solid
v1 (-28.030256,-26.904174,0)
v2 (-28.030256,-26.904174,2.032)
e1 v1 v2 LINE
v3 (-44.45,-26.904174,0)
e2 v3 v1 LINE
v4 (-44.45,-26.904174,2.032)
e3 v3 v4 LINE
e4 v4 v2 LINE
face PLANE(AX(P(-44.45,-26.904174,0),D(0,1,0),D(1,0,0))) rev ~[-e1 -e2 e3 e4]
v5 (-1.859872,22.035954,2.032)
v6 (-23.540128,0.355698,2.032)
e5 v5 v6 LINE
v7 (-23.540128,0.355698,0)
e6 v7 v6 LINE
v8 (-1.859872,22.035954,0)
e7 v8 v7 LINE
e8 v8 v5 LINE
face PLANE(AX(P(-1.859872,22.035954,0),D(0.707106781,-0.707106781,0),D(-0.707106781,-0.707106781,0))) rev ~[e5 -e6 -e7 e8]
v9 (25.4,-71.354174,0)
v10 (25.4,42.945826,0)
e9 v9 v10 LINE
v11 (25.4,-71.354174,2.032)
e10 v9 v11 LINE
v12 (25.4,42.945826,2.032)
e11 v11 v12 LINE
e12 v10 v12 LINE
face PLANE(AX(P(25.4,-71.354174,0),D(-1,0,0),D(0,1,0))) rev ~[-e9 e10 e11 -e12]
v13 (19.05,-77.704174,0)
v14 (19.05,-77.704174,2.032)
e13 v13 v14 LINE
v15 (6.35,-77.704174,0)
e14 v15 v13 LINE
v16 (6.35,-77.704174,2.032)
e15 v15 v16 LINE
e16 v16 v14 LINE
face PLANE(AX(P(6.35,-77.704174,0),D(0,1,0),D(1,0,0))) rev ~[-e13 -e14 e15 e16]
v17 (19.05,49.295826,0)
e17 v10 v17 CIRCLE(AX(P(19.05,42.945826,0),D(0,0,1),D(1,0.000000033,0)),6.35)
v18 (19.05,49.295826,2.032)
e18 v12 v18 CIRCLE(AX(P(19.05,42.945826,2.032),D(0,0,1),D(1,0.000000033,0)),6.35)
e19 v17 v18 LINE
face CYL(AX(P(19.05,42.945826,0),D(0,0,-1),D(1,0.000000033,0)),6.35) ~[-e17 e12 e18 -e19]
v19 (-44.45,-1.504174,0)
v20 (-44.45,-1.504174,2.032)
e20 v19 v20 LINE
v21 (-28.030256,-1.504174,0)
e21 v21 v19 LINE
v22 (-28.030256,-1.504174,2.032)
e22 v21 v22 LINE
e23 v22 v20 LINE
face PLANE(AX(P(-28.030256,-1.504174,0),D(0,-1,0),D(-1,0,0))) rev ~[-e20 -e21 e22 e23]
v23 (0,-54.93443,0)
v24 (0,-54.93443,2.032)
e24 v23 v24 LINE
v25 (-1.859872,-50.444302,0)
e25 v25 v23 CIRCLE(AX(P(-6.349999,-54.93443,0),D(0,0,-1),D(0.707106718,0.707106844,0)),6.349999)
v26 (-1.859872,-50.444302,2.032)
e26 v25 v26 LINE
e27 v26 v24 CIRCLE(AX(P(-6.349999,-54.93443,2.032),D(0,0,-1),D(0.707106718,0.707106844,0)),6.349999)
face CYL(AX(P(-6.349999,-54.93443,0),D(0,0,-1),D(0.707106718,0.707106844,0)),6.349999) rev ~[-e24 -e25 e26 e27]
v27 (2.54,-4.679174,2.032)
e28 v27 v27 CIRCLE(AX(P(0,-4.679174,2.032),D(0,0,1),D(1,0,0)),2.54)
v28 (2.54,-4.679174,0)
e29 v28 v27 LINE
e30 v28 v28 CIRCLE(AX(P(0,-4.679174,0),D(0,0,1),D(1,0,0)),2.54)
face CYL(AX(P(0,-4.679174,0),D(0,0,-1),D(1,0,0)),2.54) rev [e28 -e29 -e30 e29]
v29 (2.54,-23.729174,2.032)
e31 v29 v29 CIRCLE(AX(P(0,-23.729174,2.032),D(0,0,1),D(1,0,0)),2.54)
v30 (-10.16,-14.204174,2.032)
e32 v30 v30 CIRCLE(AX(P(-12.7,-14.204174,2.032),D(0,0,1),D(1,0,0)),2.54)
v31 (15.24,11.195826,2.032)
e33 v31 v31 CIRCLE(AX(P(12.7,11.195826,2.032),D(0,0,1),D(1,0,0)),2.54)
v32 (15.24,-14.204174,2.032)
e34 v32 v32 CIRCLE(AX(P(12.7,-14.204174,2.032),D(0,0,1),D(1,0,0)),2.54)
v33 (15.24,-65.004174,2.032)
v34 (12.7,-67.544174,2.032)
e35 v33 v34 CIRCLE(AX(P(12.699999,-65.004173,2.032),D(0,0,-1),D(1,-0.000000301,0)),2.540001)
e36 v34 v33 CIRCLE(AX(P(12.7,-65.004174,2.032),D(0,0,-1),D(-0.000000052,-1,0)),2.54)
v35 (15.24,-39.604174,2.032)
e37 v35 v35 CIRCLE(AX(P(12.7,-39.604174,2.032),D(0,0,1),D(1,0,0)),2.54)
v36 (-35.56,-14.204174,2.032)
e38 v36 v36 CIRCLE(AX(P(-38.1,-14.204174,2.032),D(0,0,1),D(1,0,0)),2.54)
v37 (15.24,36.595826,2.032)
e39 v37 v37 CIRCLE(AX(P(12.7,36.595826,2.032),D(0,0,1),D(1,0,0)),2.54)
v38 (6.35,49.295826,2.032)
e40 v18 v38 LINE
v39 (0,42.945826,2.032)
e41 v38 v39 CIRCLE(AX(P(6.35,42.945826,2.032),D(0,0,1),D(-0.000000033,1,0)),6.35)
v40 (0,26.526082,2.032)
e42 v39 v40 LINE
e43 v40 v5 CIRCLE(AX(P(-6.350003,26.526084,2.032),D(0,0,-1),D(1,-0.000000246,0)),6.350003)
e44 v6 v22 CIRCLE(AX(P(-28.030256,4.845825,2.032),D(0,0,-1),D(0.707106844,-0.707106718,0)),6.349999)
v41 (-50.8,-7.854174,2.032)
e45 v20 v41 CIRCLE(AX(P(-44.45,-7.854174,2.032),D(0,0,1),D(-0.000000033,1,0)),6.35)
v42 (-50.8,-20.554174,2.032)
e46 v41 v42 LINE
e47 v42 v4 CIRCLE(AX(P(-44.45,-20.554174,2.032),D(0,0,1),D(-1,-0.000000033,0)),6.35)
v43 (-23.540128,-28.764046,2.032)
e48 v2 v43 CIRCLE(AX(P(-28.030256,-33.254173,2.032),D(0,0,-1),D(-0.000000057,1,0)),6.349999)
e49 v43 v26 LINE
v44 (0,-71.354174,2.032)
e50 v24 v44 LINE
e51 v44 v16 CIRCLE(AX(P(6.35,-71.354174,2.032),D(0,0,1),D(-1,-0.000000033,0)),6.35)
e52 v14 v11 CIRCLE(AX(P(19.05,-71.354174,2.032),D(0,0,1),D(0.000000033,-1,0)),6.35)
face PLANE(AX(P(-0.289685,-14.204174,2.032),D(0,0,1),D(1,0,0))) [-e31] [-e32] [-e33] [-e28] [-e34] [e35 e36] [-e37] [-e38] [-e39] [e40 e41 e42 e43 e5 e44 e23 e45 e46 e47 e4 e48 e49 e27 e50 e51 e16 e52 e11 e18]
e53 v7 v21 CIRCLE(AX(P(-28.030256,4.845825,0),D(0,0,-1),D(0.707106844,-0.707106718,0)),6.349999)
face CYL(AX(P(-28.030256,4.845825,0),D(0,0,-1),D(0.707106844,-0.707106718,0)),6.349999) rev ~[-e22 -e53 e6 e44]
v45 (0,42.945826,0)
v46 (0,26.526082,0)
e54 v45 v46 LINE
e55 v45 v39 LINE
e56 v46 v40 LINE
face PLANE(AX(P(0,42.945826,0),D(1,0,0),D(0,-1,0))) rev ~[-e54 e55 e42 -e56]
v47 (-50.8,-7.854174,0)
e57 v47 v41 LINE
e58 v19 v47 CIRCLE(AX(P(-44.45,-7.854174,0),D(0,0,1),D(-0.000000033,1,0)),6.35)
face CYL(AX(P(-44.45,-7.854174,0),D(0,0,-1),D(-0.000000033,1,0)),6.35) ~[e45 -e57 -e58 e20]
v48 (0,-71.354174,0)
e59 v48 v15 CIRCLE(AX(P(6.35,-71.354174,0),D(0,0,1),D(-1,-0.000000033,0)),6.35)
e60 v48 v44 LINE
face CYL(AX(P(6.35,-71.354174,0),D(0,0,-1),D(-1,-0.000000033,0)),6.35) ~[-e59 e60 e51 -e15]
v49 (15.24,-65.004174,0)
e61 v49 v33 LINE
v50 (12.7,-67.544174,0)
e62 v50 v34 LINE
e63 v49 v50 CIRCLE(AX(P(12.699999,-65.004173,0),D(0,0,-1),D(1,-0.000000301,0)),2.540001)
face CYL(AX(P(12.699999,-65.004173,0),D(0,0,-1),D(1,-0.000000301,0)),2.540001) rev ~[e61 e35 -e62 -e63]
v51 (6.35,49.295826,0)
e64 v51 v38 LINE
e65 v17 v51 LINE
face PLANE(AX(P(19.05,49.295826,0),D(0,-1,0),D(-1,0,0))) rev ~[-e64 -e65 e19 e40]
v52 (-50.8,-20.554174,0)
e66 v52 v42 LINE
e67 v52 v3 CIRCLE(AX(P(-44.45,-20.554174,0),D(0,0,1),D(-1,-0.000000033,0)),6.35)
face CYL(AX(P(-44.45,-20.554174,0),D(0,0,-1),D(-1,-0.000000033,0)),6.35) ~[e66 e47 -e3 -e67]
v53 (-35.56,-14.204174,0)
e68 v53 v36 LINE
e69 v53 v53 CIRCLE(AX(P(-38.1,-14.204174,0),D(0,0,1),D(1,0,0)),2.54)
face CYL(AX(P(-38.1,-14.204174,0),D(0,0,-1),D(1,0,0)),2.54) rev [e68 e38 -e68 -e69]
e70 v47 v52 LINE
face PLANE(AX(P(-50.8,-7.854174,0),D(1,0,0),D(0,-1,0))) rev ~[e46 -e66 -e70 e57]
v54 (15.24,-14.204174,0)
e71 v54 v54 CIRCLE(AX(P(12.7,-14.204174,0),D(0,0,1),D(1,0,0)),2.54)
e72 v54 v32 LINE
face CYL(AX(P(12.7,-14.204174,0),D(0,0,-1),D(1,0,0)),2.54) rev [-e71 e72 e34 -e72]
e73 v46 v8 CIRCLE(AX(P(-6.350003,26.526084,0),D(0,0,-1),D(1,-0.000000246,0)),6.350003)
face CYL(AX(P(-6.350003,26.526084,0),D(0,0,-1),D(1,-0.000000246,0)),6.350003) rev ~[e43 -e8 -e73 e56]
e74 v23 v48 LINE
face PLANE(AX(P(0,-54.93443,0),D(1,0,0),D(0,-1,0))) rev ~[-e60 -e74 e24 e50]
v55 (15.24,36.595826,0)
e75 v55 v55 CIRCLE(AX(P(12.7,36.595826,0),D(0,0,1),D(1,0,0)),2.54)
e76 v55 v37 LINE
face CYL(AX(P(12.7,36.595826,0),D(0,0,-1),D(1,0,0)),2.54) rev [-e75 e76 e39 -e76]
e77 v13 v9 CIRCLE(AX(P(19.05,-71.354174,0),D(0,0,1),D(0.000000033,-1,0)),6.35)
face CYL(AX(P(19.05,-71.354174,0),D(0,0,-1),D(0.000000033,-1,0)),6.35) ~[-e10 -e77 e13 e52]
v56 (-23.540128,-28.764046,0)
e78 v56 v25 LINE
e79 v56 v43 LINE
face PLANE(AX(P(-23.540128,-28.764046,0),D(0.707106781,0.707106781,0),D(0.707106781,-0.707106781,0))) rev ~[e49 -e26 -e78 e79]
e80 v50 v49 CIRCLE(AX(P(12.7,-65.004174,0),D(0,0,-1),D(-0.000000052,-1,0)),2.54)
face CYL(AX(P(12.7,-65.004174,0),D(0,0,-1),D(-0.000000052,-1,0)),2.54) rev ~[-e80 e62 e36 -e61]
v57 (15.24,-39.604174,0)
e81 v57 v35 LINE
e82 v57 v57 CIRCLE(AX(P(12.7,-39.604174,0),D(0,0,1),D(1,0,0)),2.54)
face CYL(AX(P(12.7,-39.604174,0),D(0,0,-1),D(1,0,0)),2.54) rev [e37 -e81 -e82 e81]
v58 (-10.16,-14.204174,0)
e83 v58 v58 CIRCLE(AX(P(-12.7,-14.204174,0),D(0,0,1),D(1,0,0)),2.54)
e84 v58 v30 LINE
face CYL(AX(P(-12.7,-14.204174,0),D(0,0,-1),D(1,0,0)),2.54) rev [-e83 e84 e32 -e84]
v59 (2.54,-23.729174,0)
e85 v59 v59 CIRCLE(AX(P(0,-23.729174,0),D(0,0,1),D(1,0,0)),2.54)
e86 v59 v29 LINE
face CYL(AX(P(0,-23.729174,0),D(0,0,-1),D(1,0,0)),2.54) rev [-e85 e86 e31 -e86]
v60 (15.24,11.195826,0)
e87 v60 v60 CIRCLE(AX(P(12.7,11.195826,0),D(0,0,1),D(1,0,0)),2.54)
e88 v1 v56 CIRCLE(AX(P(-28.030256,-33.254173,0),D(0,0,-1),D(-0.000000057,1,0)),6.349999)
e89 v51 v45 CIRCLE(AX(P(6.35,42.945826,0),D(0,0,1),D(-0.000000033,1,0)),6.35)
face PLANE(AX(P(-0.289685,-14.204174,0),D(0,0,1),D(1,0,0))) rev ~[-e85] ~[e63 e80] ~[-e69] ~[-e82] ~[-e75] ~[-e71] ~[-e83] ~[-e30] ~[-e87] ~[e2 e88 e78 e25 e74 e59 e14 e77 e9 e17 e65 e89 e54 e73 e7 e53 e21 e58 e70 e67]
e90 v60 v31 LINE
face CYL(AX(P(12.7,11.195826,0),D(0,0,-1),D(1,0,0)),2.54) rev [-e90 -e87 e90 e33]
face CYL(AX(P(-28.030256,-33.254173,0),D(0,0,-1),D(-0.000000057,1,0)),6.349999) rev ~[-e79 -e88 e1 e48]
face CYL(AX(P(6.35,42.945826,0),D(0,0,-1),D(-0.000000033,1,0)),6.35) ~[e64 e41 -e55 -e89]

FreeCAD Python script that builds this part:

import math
import FreeCAD as App
import Part
import Sketcher
from FreeCAD import Vector
Q = App.Units.Quantity

doc = App.newDocument("Part")
body = doc.addObject("PartDesign::Body", "Body")

sketch1 = body.newObject("Sketcher::SketchObject", "Sketch")
sketch1.AttachmentSupport = (doc.getObject("XY_Plane"), [""])
sketch1.MapMode = "FlatFace"
sketch1.addGeometry(Part.ArcOfCircle(Part.Circle(Vector(19.05, -71.354174, 0), Vector(0, 0, 1), 6.35), math.radians(-89.999998), math.radians(-0.000002)), False)
sketch1.addGeometry(Part.LineSegment(Vector(25.4, -71.354174, 0), Vector(25.4, 42.945826, 0)), False)
sketch1.addGeometry(Part.ArcOfCircle(Part.Circle(Vector(19.05, 42.945826, 0), Vector(0, 0, 1), 6.35), math.radians(0.000002), math.radians(89.999998)), False)
sketch1.addGeometry(Part.LineSegment(Vector(19.05, 49.295826, 0), Vector(6.35, 49.295826, 0)), False)
sketch1.addGeometry(Part.ArcOfCircle(Part.Circle(Vector(6.35, 42.945826, 0), Vector(0, 0, 1), 6.35), math.radians(90.000002), math.radians(179.999998)), False)
sketch1.addGeometry(Part.LineSegment(Vector(0, 42.945826, 0), Vector(0, 26.526082, 0)), False)
sketch1.addGeometry(Part.ArcOfCircle(Part.Circle(Vector(-6.350003, 26.526084, 0), Vector(0, 0, 1), 6.350003), math.radians(-44.999988), math.radians(-0.000014)), False)
sketch1.addGeometry(Part.LineSegment(Vector(-1.859872, 22.035954, 0), Vector(-23.540128, 0.355698, 0)), False)
sketch1.addGeometry(Part.ArcOfCircle(Part.Circle(Vector(-28.030256, 4.845825, 0), Vector(0, 0, 1), 6.349999), math.radians(-90.000003), math.radians(-44.999995)), False)
sketch1.addGeometry(Part.LineSegment(Vector(-28.030256, -1.504174, 0), Vector(-44.45, -1.504174, 0)), False)
sketch1.addGeometry(Part.ArcOfCircle(Part.Circle(Vector(-44.45, -7.854174, 0), Vector(0, 0, 1), 6.35), math.radians(90.000002), math.radians(179.999998)), False)
sketch1.addGeometry(Part.LineSegment(Vector(-50.8, -7.854174, 0), Vector(-50.8, -20.554174, 0)), False)
sketch1.addGeometry(Part.ArcOfCircle(Part.Circle(Vector(-44.45, -20.554174, 0), Vector(0, 0, 1), 6.35), math.radians(-179.999998), math.radians(-90.000002)), False)
sketch1.addGeometry(Part.LineSegment(Vector(-44.45, -26.904174, 0), Vector(-28.030256, -26.904174, 0)), False)
sketch1.addGeometry(Part.ArcOfCircle(Part.Circle(Vector(-28.030256, -33.254173, 0), Vector(0, 0, 1), 6.349999), math.radians(44.999995), math.radians(90.000003)), False)
sketch1.addGeometry(Part.LineSegment(Vector(-23.540128, -28.764046, 0), Vector(-1.859872, -50.444302, 0)), False)
sketch1.addGeometry(Part.ArcOfCircle(Part.Circle(Vector(-6.349999, -54.93443, 0), Vector(0, 0, 1), 6.349999), math.radians(-0.000003), math.radians(45.000005)), False)
sketch1.addGeometry(Part.LineSegment(Vector(0, -54.93443, 0), Vector(0, -71.354174, 0)), False)
sketch1.addGeometry(Part.ArcOfCircle(Part.Circle(Vector(6.35, -71.354174, 0), Vector(0, 0, 1), 6.35), math.radians(-179.999998), math.radians(-90.000002)), False)
sketch1.addGeometry(Part.LineSegment(Vector(6.35, -77.704174, 0), Vector(19.05, -77.704174, 0)), False)
sketch1.addGeometry(Part.Circle(Vector(-38.1, -14.204174, 0), Vector(0, 0, 1), 2.54), False)
sketch1.addGeometry(Part.ArcOfCircle(Part.Circle(Vector(12.7, -65.004174, 0), Vector(0, 0, 1), 2.54), math.radians(0.000003), math.radians(269.999997)), False)
sketch1.addGeometry(Part.ArcOfCircle(Part.Circle(Vector(12.699999, -65.004173, 0), Vector(0, 0, 1), 2.540001), math.radians(-89.999983), math.radians(-0.000017)), False)
sketch1.addGeometry(Part.Circle(Vector(-12.7, -14.204174, 0), Vector(0, 0, 1), 2.54), False)
sketch1.addGeometry(Part.Circle(Vector(0, -23.729174, 0), Vector(0, 0, 1), 2.54), False)
sketch1.addGeometry(Part.Circle(Vector(12.7, -39.604174, 0), Vector(0, 0, 1), 2.54), False)
sketch1.addGeometry(Part.Circle(Vector(12.7, -14.204174, 0), Vector(0, 0, 1), 2.54), False)
sketch1.addGeometry(Part.Circle(Vector(0, -4.679174, 0), Vector(0, 0, 1), 2.54), False)
sketch1.addGeometry(Part.Circle(Vector(12.7, 11.195826, 0), Vector(0, 0, 1), 2.54), False)
sketch1.addGeometry(Part.Circle(Vector(12.7, 36.595826, 0), Vector(0, 0, 1), 2.54), False)
sketch1.addConstraint(Sketcher.Constraint("Tangent", 0, 2, 1, 1))
sketch1.addConstraint(Sketcher.Constraint("Tangent", 1, 2, 2, 1))
sketch1.addConstraint(Sketcher.Constraint("Tangent", 2, 2, 3, 1))
sketch1.addConstraint(Sketcher.Constraint("Tangent", 3, 2, 4, 1))
sketch1.addConstraint(Sketcher.Constraint("Tangent", 4, 2, 5, 1))
sketch1.addConstraint(Sketcher.Constraint("Tangent", 5, 2, 6, 2))
sketch1.addConstraint(Sketcher.Constraint("Tangent", 6, 1, 7, 1))
sketch1.addConstraint(Sketcher.Constraint("Tangent", 7, 2, 8, 2))
sketch1.addConstraint(Sketcher.Constraint("Tangent", 8, 1, 9, 1))
sketch1.addConstraint(Sketcher.Constraint("Tangent", 9, 2, 10, 1))
sketch1.addConstraint(Sketcher.Constraint("Tangent", 10, 2, 11, 1))
sketch1.addConstraint(Sketcher.Constraint("Tangent", 11, 2, 12, 1))
sketch1.addConstraint(Sketcher.Constraint("Tangent", 12, 2, 13, 1))
sketch1.addConstraint(Sketcher.Constraint("Tangent", 13, 2, 14, 2))
sketch1.addConstraint(Sketcher.Constraint("Tangent", 14, 1, 15, 1))
sketch1.addConstraint(Sketcher.Constraint("Tangent", 15, 2, 16, 2))
sketch1.addConstraint(Sketcher.Constraint("Tangent", 16, 1, 17, 1))
sketch1.addConstraint(Sketcher.Constraint("Tangent", 17, 2, 18, 1))
sketch1.addConstraint(Sketcher.Constraint("Tangent", 18, 2, 19, 1))
sketch1.addConstraint(Sketcher.Constraint("Tangent", 19, 2, 0, 1))
sketch1.addConstraint(Sketcher.Constraint("Tangent", 21, 1, 22, 2))
sketch1.addConstraint(Sketcher.Constraint("Coincident", 22, 1, 21, 2))
sketch1.addConstraint(Sketcher.Constraint("Vertical", 1))
sketch1.addConstraint(Sketcher.Constraint("Horizontal", 3))
sketch1.addConstraint(Sketcher.Constraint("Vertical", 5))
sketch1.addConstraint(Sketcher.Constraint("Horizontal", 9))
sketch1.addConstraint(Sketcher.Constraint("Vertical", 11))
sketch1.addConstraint(Sketcher.Constraint("Horizontal", 13))
sketch1.addConstraint(Sketcher.Constraint("Vertical", 17))
sketch1.addConstraint(Sketcher.Constraint("Horizontal", 19))
sketch1.addConstraint(Sketcher.Constraint("Equal", 0, 2))
sketch1.addConstraint(Sketcher.Constraint("Equal", 2, 4))
sketch1.addConstraint(Sketcher.Constraint("Equal", 4, 8))
sketch1.addConstraint(Sketcher.Constraint("Equal", 8, 10))
sketch1.addConstraint(Sketcher.Constraint("Equal", 10, 12))
sketch1.addConstraint(Sketcher.Constraint("Equal", 12, 14))
sketch1.addConstraint(Sketcher.Constraint("Equal", 14, 16))
sketch1.addConstraint(Sketcher.Constraint("Equal", 16, 18))
sketch1.addConstraint(Sketcher.Constraint("Equal", 20, 21))
sketch1.addConstraint(Sketcher.Constraint("Equal", 22, 23))
sketch1.addConstraint(Sketcher.Constraint("Equal", 23, 24))
sketch1.addConstraint(Sketcher.Constraint("Equal", 24, 25))
sketch1.addConstraint(Sketcher.Constraint("Equal", 25, 26))
sketch1.addConstraint(Sketcher.Constraint("Equal", 26, 27))
sketch1.addConstraint(Sketcher.Constraint("Equal", 27, 28))
sketch1.addConstraint(Sketcher.Constraint("Equal", 28, 29))
sketch1.addConstraint(Sketcher.Constraint("Symmetric", 23, 3, 26, 3, -2))
sketch1.addConstraint(Sketcher.Constraint("PointOnObject", 24, 3, -2))
sketch1.addConstraint(Sketcher.Constraint("PointOnObject", 27, 3, -2))
sketch1.addConstraint(Sketcher.Constraint("PointOnObject", 4, 2, -2))
sketch1.addConstraint(Sketcher.Constraint("PointOnObject", 16, 1, -2))
sketch1.addConstraint(Sketcher.Constraint("Perpendicular", 7, 15))
sketch1.addConstraint(Sketcher.Constraint("Horizontal", 20, 3, 23, 3))
sketch1.addConstraint(Sketcher.Constraint("Horizontal", 22, 3, 21, 1))
sketch1.addConstraint(Sketcher.Constraint("Vertical", 8, 3, 14, 3))
sketch1.addConstraint(Sketcher.Constraint("Vertical", 22, 3, 25, 3))
sketch1.addConstraint(Sketcher.Constraint("Vertical", 25, 3, 26, 3))
sketch1.addConstraint(Sketcher.Constraint("Vertical", 26, 3, 28, 3))
sketch1.addConstraint(Sketcher.Constraint("Vertical", 28, 3, 29, 3))
sketch1.addConstraint(Sketcher.Constraint("Vertical", 7, 2, 14, 1))
sketch1.addConstraint(Sketcher.Constraint("Vertical", 6, 1, 15, 2))
sketch1.addConstraint(Sketcher.Constraint("Vertical", 29, 3, 22, 1))
sketch1.addConstraint(Sketcher.Constraint("Equal", 13, 5))
sketch1.addConstraint(Sketcher.Constraint("Equal", 19, 11))
sketch1.addConstraint(Sketcher.Constraint("Equal", 5, 17))
sketch1.addConstraint(Sketcher.Constraint("Diameter", 20, Q("0.2 in")))
sketch1.addConstraint(Sketcher.Constraint("Radius", 0, Q("0.25 in")))
sketch1.addConstraint(Sketcher.Constraint("DistanceX", 3, 2, 3, 1, Q("0.5 in")))
sketch1.addConstraint(Sketcher.Constraint("DistanceY", 1, 1, 1, 2, Q("4.5 in")))
sketch1.addConstraint(Sketcher.Constraint("DistanceX", 20, 3, 21, 3, Q("2 in")))
sketch1.addConstraint(Sketcher.Constraint("DistanceY", 21, 3, 20, 3, Q("2 in")))
sketch1.addConstraint(Sketcher.Constraint("DistanceX", 20, 3, 23, 3, Q("1 in")))
sketch1.addConstraint(Sketcher.Constraint("DistanceY", 22, 3, 25, 3, Q("1 in")))
sketch1.addConstraint(Sketcher.Constraint("DistanceY", 26, 3, 28, 3, Q("1 in")))
sketch1.addConstraint(Sketcher.Constraint("DistanceY", 28, 3, 29, 3, Q("1 in")))
sketch1.addConstraint(Sketcher.Constraint("DistanceY", 29, 3, 2, 2, Q("0.5 in")))
sketch1.addConstraint(Sketcher.Constraint("DistanceY", 24, 3, 27, 3, Q("0.75 in")))
sketch1.addConstraint(Sketcher.Constraint("DistanceY", 24, 3, 23, 3, Q("0.375 in")))
sketch1.addConstraint(Sketcher.Constraint("DistanceX", 9, 2, 9, 1, Q("16.419744 mm")))
sketch1.addConstraint(Sketcher.Constraint("DistanceY", 16, 3, -1, 1, Q("54.93443 mm")))
pad1 = body.newObject("PartDesign::Pad", "Pad")
pad1.Profile = sketch1
pad1.Length = Q("0.08 in")

doc.recompute()
